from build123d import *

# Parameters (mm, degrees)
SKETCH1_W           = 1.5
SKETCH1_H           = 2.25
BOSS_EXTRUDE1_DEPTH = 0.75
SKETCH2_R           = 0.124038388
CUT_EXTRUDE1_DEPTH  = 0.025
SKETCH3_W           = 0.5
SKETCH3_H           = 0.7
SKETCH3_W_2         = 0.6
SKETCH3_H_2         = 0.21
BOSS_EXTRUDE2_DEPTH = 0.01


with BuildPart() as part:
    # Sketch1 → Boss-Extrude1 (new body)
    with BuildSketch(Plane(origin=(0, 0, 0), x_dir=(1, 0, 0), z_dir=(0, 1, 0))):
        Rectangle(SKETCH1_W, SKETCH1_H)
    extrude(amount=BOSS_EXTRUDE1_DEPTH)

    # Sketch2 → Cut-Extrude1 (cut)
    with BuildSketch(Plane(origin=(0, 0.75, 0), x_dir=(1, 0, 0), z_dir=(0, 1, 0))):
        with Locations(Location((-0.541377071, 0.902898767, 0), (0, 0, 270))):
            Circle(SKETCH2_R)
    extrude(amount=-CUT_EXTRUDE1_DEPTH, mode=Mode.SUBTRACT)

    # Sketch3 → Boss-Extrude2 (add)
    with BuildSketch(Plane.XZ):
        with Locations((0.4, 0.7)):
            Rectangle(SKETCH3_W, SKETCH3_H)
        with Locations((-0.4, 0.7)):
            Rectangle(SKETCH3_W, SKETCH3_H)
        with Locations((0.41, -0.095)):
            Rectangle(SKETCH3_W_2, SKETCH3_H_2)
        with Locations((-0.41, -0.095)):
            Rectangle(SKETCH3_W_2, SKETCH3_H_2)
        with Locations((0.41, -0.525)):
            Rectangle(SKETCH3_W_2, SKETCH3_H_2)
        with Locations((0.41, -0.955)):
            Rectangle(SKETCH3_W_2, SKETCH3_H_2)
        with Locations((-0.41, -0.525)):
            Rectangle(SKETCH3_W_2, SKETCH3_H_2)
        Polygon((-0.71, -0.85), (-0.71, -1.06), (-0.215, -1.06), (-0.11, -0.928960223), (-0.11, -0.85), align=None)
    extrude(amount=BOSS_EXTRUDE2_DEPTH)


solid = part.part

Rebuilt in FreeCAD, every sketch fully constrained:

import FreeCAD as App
import Part
import Sketcher

V = App.Vector


def add_polygon(sketch, points):
    """Adds a closed chain of lines whose ends are joined by coincident constraints."""
    first, n = sketch.GeometryCount, len(points)
    for a, b in zip(points, points[1:] + points[:1]):
        sketch.addGeometry(Part.LineSegment(App.Vector(*a, 0), App.Vector(*b, 0)), False)
    for i in range(n):
        sketch.addConstraint(Sketcher.Constraint("Coincident", first + i, 2, first + (i + 1) % n, 1))

doc = App.newDocument("Part")
body = doc.addObject("PartDesign::Body", "Body")

# Sketch on XZ plane
sketch1 = doc.addObject("Sketcher::SketchObject", "Sketch")
body.addObject(sketch1)
sketch1.AttachmentSupport = (doc.XZ_Plane, [""])
sketch1.MapMode = "FlatFace"
add_polygon(sketch1, [(-0.8, -1.1), (-0.8, 1.1), (0.8, 1.1), (0.8, -1.1)])  # lines 0-3
sketch1.addConstraint([
    Sketcher.Constraint("Vertical", 0),
    Sketcher.Constraint("Horizontal", 1),
    Sketcher.Constraint("Vertical", 2),
    Sketcher.Constraint("Horizontal", 3),
    Sketcher.Constraint("Symmetric", 0, 2, 2, 2, -1, 1),
    Sketcher.Constraint("DistanceX", 1, 1, 1, 2, 1.5),
    Sketcher.Constraint("DistanceY", 0, 1, 0, 2, 2.25),
])
pad1 = doc.addObject("PartDesign::Pad", "Pad")
body.addObject(pad1)
pad1.Profile = sketch1
pad1.Length = 0.75
pad1.Reversed = True

# Sketch on XZ plane
sketch2 = doc.addObject("Sketcher::SketchObject", "Sketch001")
body.addObject(sketch2)
sketch2.AttachmentSupport = (doc.XZ_Plane, [""])
sketch2.MapMode = "FlatFace"
sketch2.AttachmentOffset = App.Placement(V(0, 0, -0.75), App.Rotation())
sketch2.addGeometry(Part.Circle(V(-0.54, -0.9, 0), V(0, 0, 1), 0.12), False)
sketch2.addConstraint([
    Sketcher.Constraint("Diameter", 0, 0.248077),
    Sketcher.Constraint("DistanceY", 0, 3, -1, 1, 0.902899),
    Sketcher.Constraint("DistanceX", 0, 3, -1, 1, 0.541377),
])
pocket1 = doc.addObject("PartDesign::Pocket", "Pocket")
body.addObject(pocket1)
pocket1.Profile = sketch2
pocket1.Length = 0.025
pocket1.Reversed = True

# Sketch on XZ plane
sketch3 = doc.addObject("Sketcher::SketchObject", "Sketch002")
body.addObject(sketch3)
sketch3.AttachmentSupport = (doc.XZ_Plane, [""])
sketch3.MapMode = "FlatFace"
add_polygon(sketch3, [(0.15, 1.05), (0.15, 0.35), (0.65, 0.35), (0.65, 1.05)])  # lines 0-3
add_polygon(sketch3, [(-0.65, 1.05), (-0.65, 0.35), (-0.15, 0.35), (-0.15, 1.05)])  # lines 4-7
add_polygon(sketch3, [(0.11, 0.01), (0.11, -0.2), (0.71, -0.2), (0.71, 0.01)])  # lines 8-11
add_polygon(sketch3, [(-0.71, 0.01), (-0.71, -0.2), (-0.11, -0.2), (-0.11, 0.01)])  # lines 12-15
add_polygon(sketch3, [(0.11, -0.42), (0.11, -0.63), (0.71, -0.63), (0.71, -0.42)])  # lines 16-19
add_polygon(sketch3, [(0.11, -0.85), (0.11, -1.06), (0.71, -1.06), (0.71, -0.85)])  # lines 20-23
add_polygon(sketch3, [(-0.71, -0.42), (-0.71, -0.63), (-0.11, -0.63), (-0.11, -0.42)])  # lines 24-27
add_polygon(sketch3, [(-0.71, -0.85), (-0.71, -1.06), (-0.21, -1.06), (-0.11, -0.93), (-0.11, -0.85)])  # lines 28-32
sketch3.addConstraint([
    Sketcher.Constraint("Vertical", 0),
    Sketcher.Constraint("Horizontal", 1),
    Sketcher.Constraint("Vertical", 2),
    Sketcher.Constraint("Horizontal", 3),
    Sketcher.Constraint("Vertical", 4),
    Sketcher.Constraint("Horizontal", 5),
    Sketcher.Constraint("Vertical", 6),
    Sketcher.Constraint("Horizontal", 7),
    Sketcher.Constraint("Vertical", 8),
    Sketcher.Constraint("Horizontal", 9),
    Sketcher.Constraint("Vertical", 10),
    Sketcher.Constraint("Horizontal", 11),
    Sketcher.Constraint("Vertical", 12),
    Sketcher.Constraint("Horizontal", 13),
    Sketcher.Constraint("Vertical", 14),
    Sketcher.Constraint("Horizontal", 15),
    Sketcher.Constraint("Vertical", 16),
    Sketcher.Constraint("Horizontal", 17),
    Sketcher.Constraint("Vertical", 18),
    Sketcher.Constraint("Horizontal", 19),
    Sketcher.Constraint("Vertical", 20),
    Sketcher.Constraint("Horizontal", 21),
    Sketcher.Constraint("Vertical", 22),
    Sketcher.Constraint("Horizontal", 23),
    Sketcher.Constraint("Vertical", 24),
    Sketcher.Constraint("Horizontal", 25),
    Sketcher.Constraint("Vertical", 26),
    Sketcher.Constraint("Horizontal", 27),
    Sketcher.Constraint("Vertical", 28),
    Sketcher.Constraint("Horizontal", 29),
    Sketcher.Constraint("Vertical", 31),
    Sketcher.Constraint("Horizontal", 32),
    Sketcher.Constraint("Symmetric", 1, 2, 4, 2, -2),
    Sketcher.Constraint("Symmetric", 3, 2, 6, 2, -2),
    Sketcher.Constraint("Symmetric", 9, 2, 12, 2, -2),
    Sketcher.Constraint("Symmetric", 11, 2, 14, 2, -2),
    Sketcher.Constraint("Symmetric", 17, 2, 24, 2, -2),
    Sketcher.Constraint("Symmetric", 19, 2, 26, 2, -2),
    Sketcher.Constraint("Symmetric", 21, 2, 28, 2, -2),
    Sketcher.Constraint("Symmetric", 23, 2, 31, 2, -2),
    Sketcher.Constraint("Vertical", 11, 2, 16, 2),
    Sketcher.Constraint("Vertical", 10, 2, 17, 2),
    Sketcher.Constraint("Vertical", 19, 2, 20, 2),
    Sketcher.Constraint("Vertical", 18, 2, 21, 2),
    Sketcher.Constraint("Equal", 14, 16),
    Sketcher.Constraint("Equal", 18, 20),
    Sketcher.Constraint("DistanceX", 1, 1, 1, 2, 0.5),
    Sketcher.Constraint("DistanceX", 9, 1, 9, 2, 0.6),
    Sketcher.Constraint("DistanceY", 0, 2, 0, 1, 0.7),
    Sketcher.Constraint("DistanceY", 8, 2, 8, 1, 0.21),
    Sketcher.Constraint("DistanceY", 8, 2, -1, 1, 0.2),
    Sketcher.Constraint("DistanceX", 4, 2, 0, 2, 0.8),
    Sketcher.Constraint("DistanceX", 29, 1, 29, 2, 0.495),
    Sketcher.Constraint("DistanceY", -1, 1, 0, 2, 0.35),
    Sketcher.Constraint("DistanceX", -1, 1, 8, 2, 0.11),
    Sketcher.Constraint("DistanceY", 16, 2, -1, 1, 0.63),
    Sketcher.Constraint("DistanceY", 20, 2, -1, 1, 1.06),
    Sketcher.Constraint("DistanceY", 31, 1, 31, 2, 0.07896),
])
pad2 = doc.addObject("PartDesign::Pad", "Pad001")
body.addObject(pad2)
pad2.Profile = sketch3
pad2.Length = 0.01

doc.recompute()
